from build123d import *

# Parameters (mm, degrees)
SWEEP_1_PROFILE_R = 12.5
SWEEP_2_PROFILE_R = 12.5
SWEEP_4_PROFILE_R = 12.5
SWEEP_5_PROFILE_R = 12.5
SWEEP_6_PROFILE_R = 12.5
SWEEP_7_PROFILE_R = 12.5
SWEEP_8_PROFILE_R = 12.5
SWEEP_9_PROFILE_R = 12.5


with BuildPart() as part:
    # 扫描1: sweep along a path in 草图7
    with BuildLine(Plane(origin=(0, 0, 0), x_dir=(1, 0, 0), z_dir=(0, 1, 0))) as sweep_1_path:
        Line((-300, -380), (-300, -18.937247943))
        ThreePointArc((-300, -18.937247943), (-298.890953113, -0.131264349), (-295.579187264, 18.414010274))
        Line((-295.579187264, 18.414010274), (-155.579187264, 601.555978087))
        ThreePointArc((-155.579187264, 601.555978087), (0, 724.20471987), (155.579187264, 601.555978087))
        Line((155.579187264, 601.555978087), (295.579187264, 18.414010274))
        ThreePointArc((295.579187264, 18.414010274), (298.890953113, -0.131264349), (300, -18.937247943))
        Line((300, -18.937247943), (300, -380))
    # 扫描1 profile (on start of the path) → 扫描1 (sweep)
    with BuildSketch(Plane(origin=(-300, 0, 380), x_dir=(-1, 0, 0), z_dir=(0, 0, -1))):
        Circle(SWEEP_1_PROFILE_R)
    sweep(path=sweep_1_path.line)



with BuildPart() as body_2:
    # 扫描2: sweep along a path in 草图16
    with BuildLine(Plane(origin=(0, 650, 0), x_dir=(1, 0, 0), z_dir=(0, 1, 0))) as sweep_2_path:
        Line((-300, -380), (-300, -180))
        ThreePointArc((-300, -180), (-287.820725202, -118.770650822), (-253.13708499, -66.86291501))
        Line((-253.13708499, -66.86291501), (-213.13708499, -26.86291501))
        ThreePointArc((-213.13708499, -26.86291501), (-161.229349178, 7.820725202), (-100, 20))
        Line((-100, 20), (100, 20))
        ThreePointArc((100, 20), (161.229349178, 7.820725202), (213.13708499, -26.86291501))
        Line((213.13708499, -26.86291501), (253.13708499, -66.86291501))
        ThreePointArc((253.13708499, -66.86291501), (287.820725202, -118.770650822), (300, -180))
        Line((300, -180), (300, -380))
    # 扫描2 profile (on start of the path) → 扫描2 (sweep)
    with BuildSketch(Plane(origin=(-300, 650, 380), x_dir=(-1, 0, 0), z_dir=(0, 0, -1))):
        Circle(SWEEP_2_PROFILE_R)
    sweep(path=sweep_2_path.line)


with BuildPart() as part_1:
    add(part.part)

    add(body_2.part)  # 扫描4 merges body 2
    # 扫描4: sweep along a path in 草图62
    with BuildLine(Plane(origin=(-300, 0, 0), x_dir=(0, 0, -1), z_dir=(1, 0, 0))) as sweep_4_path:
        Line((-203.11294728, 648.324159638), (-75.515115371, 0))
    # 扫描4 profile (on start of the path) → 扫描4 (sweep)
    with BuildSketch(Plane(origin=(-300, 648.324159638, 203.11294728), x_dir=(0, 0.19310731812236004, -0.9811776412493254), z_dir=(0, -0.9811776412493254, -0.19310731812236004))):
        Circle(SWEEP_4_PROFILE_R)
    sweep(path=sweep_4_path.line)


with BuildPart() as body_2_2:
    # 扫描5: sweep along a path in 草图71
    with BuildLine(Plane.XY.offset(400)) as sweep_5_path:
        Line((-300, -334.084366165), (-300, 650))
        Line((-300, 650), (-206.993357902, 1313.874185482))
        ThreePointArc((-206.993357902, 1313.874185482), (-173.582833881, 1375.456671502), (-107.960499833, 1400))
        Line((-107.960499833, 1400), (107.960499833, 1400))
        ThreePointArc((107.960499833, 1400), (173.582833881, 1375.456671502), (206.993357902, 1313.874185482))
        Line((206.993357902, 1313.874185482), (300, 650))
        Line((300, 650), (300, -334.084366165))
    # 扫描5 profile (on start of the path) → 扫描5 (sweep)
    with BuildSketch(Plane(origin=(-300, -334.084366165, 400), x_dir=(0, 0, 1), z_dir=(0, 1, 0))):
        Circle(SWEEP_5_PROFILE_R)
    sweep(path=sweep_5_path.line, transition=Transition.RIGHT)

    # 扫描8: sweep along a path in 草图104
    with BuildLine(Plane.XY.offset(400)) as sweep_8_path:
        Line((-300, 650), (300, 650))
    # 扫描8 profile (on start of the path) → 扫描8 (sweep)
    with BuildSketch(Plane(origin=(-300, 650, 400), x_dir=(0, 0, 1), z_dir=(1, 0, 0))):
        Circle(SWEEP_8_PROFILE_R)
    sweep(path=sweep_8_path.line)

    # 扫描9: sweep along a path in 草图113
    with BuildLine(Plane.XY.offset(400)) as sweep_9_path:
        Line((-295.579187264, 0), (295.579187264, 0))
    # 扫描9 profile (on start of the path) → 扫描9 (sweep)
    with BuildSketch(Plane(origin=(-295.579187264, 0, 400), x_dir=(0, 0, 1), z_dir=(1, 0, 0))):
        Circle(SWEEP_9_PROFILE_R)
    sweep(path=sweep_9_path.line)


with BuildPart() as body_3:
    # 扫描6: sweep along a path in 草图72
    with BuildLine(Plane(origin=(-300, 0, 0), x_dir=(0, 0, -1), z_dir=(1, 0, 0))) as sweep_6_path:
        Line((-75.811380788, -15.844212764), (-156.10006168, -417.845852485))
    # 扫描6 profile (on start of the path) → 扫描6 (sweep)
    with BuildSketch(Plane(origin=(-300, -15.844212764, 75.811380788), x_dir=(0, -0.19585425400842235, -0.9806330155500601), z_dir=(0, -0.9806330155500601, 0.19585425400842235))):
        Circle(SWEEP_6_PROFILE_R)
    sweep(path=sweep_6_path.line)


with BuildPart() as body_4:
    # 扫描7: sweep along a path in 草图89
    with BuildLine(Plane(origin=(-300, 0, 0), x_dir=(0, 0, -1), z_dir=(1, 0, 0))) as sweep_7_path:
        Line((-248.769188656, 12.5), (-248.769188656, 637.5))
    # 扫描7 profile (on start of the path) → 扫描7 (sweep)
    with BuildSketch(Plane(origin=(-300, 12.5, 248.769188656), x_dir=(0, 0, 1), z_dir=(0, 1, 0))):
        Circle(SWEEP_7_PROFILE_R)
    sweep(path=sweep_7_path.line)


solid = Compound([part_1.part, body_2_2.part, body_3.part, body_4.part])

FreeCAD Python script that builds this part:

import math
import FreeCAD as App
import Part
import Sketcher

V = App.Vector
Q = App.Units.Quantity

doc = App.newDocument("Part")
body = doc.addObject("PartDesign::Body", "Body")

# Sketch on XY plane
sketch1 = body.newObject("Sketcher::SketchObject", "Sketch")
sketch1.AttachmentSupport = (doc.getObject("XY_Plane"), [""])
sketch1.MapMode = "FlatFace"
sketch1.AttachmentOffset = App.Placement(V(0, 0, 380), App.Rotation())
sketch1.addGeometry(Part.Circle(V(-300, 0, 0), V(0, 0, 1), 12), False)
sketch1.addConstraint(Sketcher.Constraint("PointOnObject", 0, 3, -1))
sketch1.addConstraint(Sketcher.Constraint("Diameter", 0, 25.0))
sketch1.addConstraint(Sketcher.Constraint("DistanceX", 0, 3, -1, 1, 300.0))

# Sketch on XZ plane
sketch2 = body.newObject("Sketcher::SketchObject", "Sketch001")
sketch2.AttachmentSupport = (doc.getObject("XZ_Plane"), [""])
sketch2.MapMode = "FlatFace"
sketch2.addGeometry(Part.LineSegment(V(-300, 380, 0), V(-300, 19, 0)), False)
sketch2.addGeometry(Part.ArcOfCircle(Part.Circle(V(-140, 19, 0), V(0, 0, 1), 160), math.radians(180), math.radians(193.5)), False)
sketch2.addGeometry(Part.LineSegment(V(-296, -18, 0), V(-156, -602, 0)), False)
sketch2.addGeometry(Part.ArcOfCircle(Part.Circle(V(0, -564, 0), V(0, 0, 1), 160), math.radians(-167), math.radians(-13)), False)
sketch2.addGeometry(Part.LineSegment(V(156, -602, 0), V(296, -18, 0)), False)
sketch2.addGeometry(Part.ArcOfCircle(Part.Circle(V(140, 19, 0), V(0, 0, 1), 160), math.radians(-13.5), math.radians(0)), False)
sketch2.addGeometry(Part.LineSegment(V(300, 19, 0), V(300, 380, 0)), False)
sketch2.addConstraint(Sketcher.Constraint("Tangent", 0, 2, 1, 1))
sketch2.addConstraint(Sketcher.Constraint("Tangent", 1, 2, 2, 1))
sketch2.addConstraint(Sketcher.Constraint("Tangent", 2, 2, 3, 1))
sketch2.addConstraint(Sketcher.Constraint("Tangent", 3, 2, 4, 1))
sketch2.addConstraint(Sketcher.Constraint("Tangent", 4, 2, 5, 1))
sketch2.addConstraint(Sketcher.Constraint("Tangent", 5, 2, 6, 1))
sketch2.addConstraint(Sketcher.Constraint("Vertical", 0))
sketch2.addConstraint(Sketcher.Constraint("Vertical", 6))
sketch2.addConstraint(Sketcher.Constraint("Equal", 1, 3))
sketch2.addConstraint(Sketcher.Constraint("Equal", 3, 5))
sketch2.addConstraint(Sketcher.Constraint("Symmetric", 1, 3, 5, 3, -2))
sketch2.addConstraint(Sketcher.Constraint("PointOnObject", 3, 3, -2))
sketch2.addConstraint(Sketcher.Constraint("Horizontal", 0, 1, 6, 2))
sketch2.addConstraint(Sketcher.Constraint("Radius", 1, 160.0))
sketch2.addConstraint(Sketcher.Constraint("DistanceX", 1, 3, -1, 1, 140.0))
sketch2.addConstraint(Sketcher.Constraint("DistanceY", -1, 1, 0, 1, 380.0))
sketch2.addConstraint(Sketcher.Constraint("Angle", 2, Q("-76.5 deg")))
sketch2.addConstraint(Sketcher.Constraint("DistanceY", 0, 2, 0, 1, 361.062752))
doc.recompute()

additivepipe = body.newObject("PartDesign::AdditivePipe", "AdditivePipe")
additivepipe.Profile = sketch1
additivepipe.Spine = (sketch2, ["Edge1", "Edge2", "Edge3", "Edge4", "Edge5", "Edge6", "Edge7"])
body2 = doc.addObject("PartDesign::Body", "Body001")

# Sketch on XY plane
sketch3 = body2.newObject("Sketcher::SketchObject", "Sketch002")
sketch3.AttachmentSupport = (doc.getObject("XY_Plane001"), [""])
sketch3.MapMode = "FlatFace"
sketch3.AttachmentOffset = App.Placement(V(0, 0, 380), App.Rotation())
sketch3.addGeometry(Part.Circle(V(-300, 650, 0), V(0, 0, 1), 12), False)
sketch3.addConstraint(Sketcher.Constraint("Diameter", 0, 25.0))
sketch3.addConstraint(Sketcher.Constraint("DistanceX", 0, 3, -1, 1, 300.0))
sketch3.addConstraint(Sketcher.Constraint("DistanceY", -1, 1, 0, 3, 650.0))

# Sketch on XZ plane
sketch4 = body2.newObject("Sketcher::SketchObject", "Sketch003")
sketch4.AttachmentSupport = (doc.getObject("XZ_Plane001"), [""])
sketch4.MapMode = "FlatFace"
sketch4.AttachmentOffset = App.Placement(V(0, 0, -650), App.Rotation())
sketch4.addGeometry(Part.LineSegment(V(-300, 380, 0), V(-300, 180, 0)), False)
sketch4.addGeometry(Part.ArcOfCircle(Part.Circle(V(-140, 180, 0), V(0, 0, 1), 160), math.radians(180), math.radians(225)), False)
sketch4.addGeometry(Part.LineSegment(V(-253, 67, 0), V(-213, 27, 0)), False)
sketch4.addGeometry(Part.ArcOfCircle(Part.Circle(V(-100, 140, 0), V(0, 0, 1), 160), math.radians(-135), math.radians(-90)), False)
sketch4.addGeometry(Part.LineSegment(V(-100, -20, 0), V(100, -20, 0)), False)
sketch4.addGeometry(Part.ArcOfCircle(Part.Circle(V(100, 140, 0), V(0, 0, 1), 160), math.radians(-90), math.radians(-45)), False)
sketch4.addGeometry(Part.LineSegment(V(213, 27, 0), V(253, 67, 0)), False)
sketch4.addGeometry(Part.ArcOfCircle(Part.Circle(V(140, 180, 0), V(0, 0, 1), 160), math.radians(-45), math.radians(0)), False)
sketch4.addGeometry(Part.LineSegment(V(300, 180, 0), V(300, 380, 0)), False)
sketch4.addConstraint(Sketcher.Constraint("Tangent", 0, 2, 1, 1))
sketch4.addConstraint(Sketcher.Constraint("Tangent", 1, 2, 2, 1))
sketch4.addConstraint(Sketcher.Constraint("Tangent", 2, 2, 3, 1))
sketch4.addConstraint(Sketcher.Constraint("Tangent", 3, 2, 4, 1))
sketch4.addConstraint(Sketcher.Constraint("Tangent", 4, 2, 5, 1))
sketch4.addConstraint(Sketcher.Constraint("Tangent", 5, 2, 6, 1))
sketch4.addConstraint(Sketcher.Constraint("Tangent", 6, 2, 7, 1))
sketch4.addConstraint(Sketcher.Constraint("Tangent", 7, 2, 8, 1))
sketch4.addConstraint(Sketcher.Constraint("Vertical", 0))
sketch4.addConstraint(Sketcher.Constraint("Horizontal", 4))
sketch4.addConstraint(Sketcher.Constraint("Vertical", 8))
sketch4.addConstraint(Sketcher.Constraint("Equal", 1, 3))
sketch4.addConstraint(Sketcher.Constraint("Equal", 3, 5))
sketch4.addConstraint(Sketcher.Constraint("Equal", 5, 7))
sketch4.addConstraint(Sketcher.Constraint("Symmetric", 1, 3, 7, 3, -2))
sketch4.addConstraint(Sketcher.Constraint("Perpendicular", 2, 6))
sketch4.addConstraint(Sketcher.Constraint("Horizontal", 2, 2, 5, 2))
sketch4.addConstraint(Sketcher.Constraint("Horizontal", 0, 1, 8, 2))
sketch4.addConstraint(Sketcher.Constraint("Equal", 4, 0))
sketch4.addConstraint(Sketcher.Constraint("Radius", 1, 160.0))
sketch4.addConstraint(Sketcher.Constraint("DistanceX", 4, 1, 4, 2, 200.0))
sketch4.addConstraint(Sketcher.Constraint("DistanceX", 1, 3, -1, 1, 140.0))
sketch4.addConstraint(Sketcher.Constraint("DistanceY", -1, 1, 1, 3, 180.0))
doc.recompute()

additivepipe2 = body2.newObject("PartDesign::AdditivePipe", "AdditivePipe001")
additivepipe2.Profile = sketch3
additivepipe2.Spine = (sketch4, ["Edge1", "Edge2", "Edge3", "Edge4", "Edge5", "Edge6", "Edge7", "Edge8", "Edge9"])
body.AllowCompound = True
doc.recompute()

boolean = body.newObject("PartDesign::Boolean", "Boolean")
boolean.Type = "Fuse"
boolean.addObjects([body2])

# Sketch on an angled plane
sketch5 = body.newObject("Sketcher::SketchObject", "Sketch004")
sketch5.Placement = App.Placement(V(-300, 648.32416, 203.112947), App.Rotation(V(0, 0.193107318, -0.981177641), V(0.999999999, 0, 0), V(0, -0.981177641, -0.193107318), "ZXY"))
sketch5.addGeometry(Part.Circle(V(0, 0, 0), V(0, 0, 1), 12), False)
sketch5.addConstraint(Sketcher.Constraint("Coincident", 0, 3, -1, 1))
sketch5.addConstraint(Sketcher.Constraint("Diameter", 0, 25.0))

# Sketch on an angled plane
sketch6 = body.newObject("Sketcher::SketchObject", "Sketch005")
sketch6.Placement = App.Placement(V(0, -14.308044, 72.699124), App.Rotation(V(0, 0.981177641, 0.193107318), V(0.999999999, 0, 0), V(0, 0.193107318, -0.981177641), "ZXY"))
sketch6.addGeometry(Part.LineSegment(V(675, -300, 0), V(15, -300, 0)), False)
sketch6.addConstraint(Sketcher.Constraint("Horizontal", 0))
sketch6.addConstraint(Sketcher.Constraint("DistanceY", 0, 1, -1, 1, 300.0))
sketch6.addConstraint(Sketcher.Constraint("DistanceX", 0, 2, 0, 1, 660.761244))
sketch6.addConstraint(Sketcher.Constraint("DistanceX", -1, 1, 0, 2, 14.582521))
doc.recompute()

additivepipe3 = body.newObject("PartDesign::AdditivePipe", "AdditivePipe002")
additivepipe3.Profile = sketch5
additivepipe3.Spine = (sketch6, ["Edge1"])
body3 = doc.addObject("PartDesign::Body", "Body002")

# Sketch on XZ plane
sketch7 = body3.newObject("Sketcher::SketchObject", "Sketch006")
sketch7.AttachmentSupport = (doc.getObject("XZ_Plane002"), [""])
sketch7.MapMode = "FlatFace"
sketch7.AttachmentOffset = App.Placement(V(0, 0, 334.084366), App.Rotation())
sketch7.addGeometry(Part.Circle(V(-300, 400, 0), V(0, 0, 1), 12), False)
sketch7.addConstraint(Sketcher.Constraint("Diameter", 0, 25.0))
sketch7.addConstraint(Sketcher.Constraint("DistanceX", 0, 3, -1, 1, 300.0))
sketch7.addConstraint(Sketcher.Constraint("DistanceY", -1, 1, 0, 3, 400.0))

# Sketch on XY plane
sketch8 = body3.newObject("Sketcher::SketchObject", "Sketch007")
sketch8.AttachmentSupport = (doc.getObject("XY_Plane002"), [""])
sketch8.MapMode = "FlatFace"
sketch8.AttachmentOffset = App.Placement(V(0, 0, 400), App.Rotation())
sketch8.addGeometry(Part.LineSegment(V(-300, -334, 0), V(-300, 650, 0)), False)
sketch8.addGeometry(Part.LineSegment(V(-300, 650, 0), V(-207, 1314, 0)), False)
sketch8.addGeometry(Part.ArcOfCircle(Part.Circle(V(-108, 1300, 0), V(0, 0, 1), 100), math.radians(90), math.radians(172)), False)
sketch8.addGeometry(Part.LineSegment(V(-108, 1400, 0), V(108, 1400, 0)), False)
sketch8.addGeometry(Part.ArcOfCircle(Part.Circle(V(108, 1300, 0), V(0, 0, 1), 100), math.radians(8), math.radians(90)), False)
sketch8.addGeometry(Part.LineSegment(V(207, 1314, 0), V(300, 650, 0)), False)
sketch8.addGeometry(Part.LineSegment(V(300, 650, 0), V(300, -334, 0)), False)
sketch8.addConstraint(Sketcher.Constraint("Coincident", 0, 2, 1, 1))
sketch8.addConstraint(Sketcher.Constraint("Tangent", 1, 2, 2, 2))
sketch8.addConstraint(Sketcher.Constraint("Tangent", 2, 1, 3, 1))
sketch8.addConstraint(Sketcher.Constraint("Tangent", 3, 2, 4, 2))
sketch8.addConstraint(Sketcher.Constraint("Tangent", 4, 1, 5, 1))
sketch8.addConstraint(Sketcher.Constraint("Coincident", 5, 2, 6, 1))
sketch8.addConstraint(Sketcher.Constraint("Vertical", 0))
sketch8.addConstraint(Sketcher.Constraint("Horizontal", 3))
sketch8.addConstraint(Sketcher.Constraint("Vertical", 6))
sketch8.addConstraint(Sketcher.Constraint("Equal", 2, 4))
sketch8.addConstraint(Sketcher.Constraint("Symmetric", 0, 2, 5, 2, -2))
sketch8.addConstraint(Sketcher.Constraint("Horizontal", 0, 1, 6, 2))
sketch8.addConstraint(Sketcher.Constraint("Equal", 1, 5))
sketch8.addConstraint(Sketcher.Constraint("Radius", 2, 100.0))
sketch8.addConstraint(Sketcher.Constraint("DistanceY", -1, 1, 2, 3, 1300.0))
sketch8.addConstraint(Sketcher.Constraint("DistanceX", 0, 1, -1, 1, 300.0))
sketch8.addConstraint(Sketcher.Constraint("DistanceY", -1, 1, 0, 2, 650.0))
sketch8.addConstraint(Sketcher.Constraint("DistanceX", 3, 1, 3, 2, 215.921))
sketch8.addConstraint(Sketcher.Constraint("DistanceY", 0, 1, 0, 2, 984.084366))
doc.recompute()

additivepipe4 = body3.newObject("PartDesign::AdditivePipe", "AdditivePipe003")
additivepipe4.Profile = sketch7
additivepipe4.Spine = (sketch8, ["Edge1", "Edge2", "Edge3", "Edge4", "Edge5", "Edge6", "Edge7"])
additivepipe4.Transition = "Right corner"

# Sketch on YZ plane
sketch9 = body3.newObject("Sketcher::SketchObject", "Sketch008")
sketch9.AttachmentSupport = (doc.getObject("YZ_Plane002"), [""])
sketch9.MapMode = "FlatFace"
sketch9.AttachmentOffset = App.Placement(V(0, 0, -300), App.Rotation())
sketch9.addGeometry(Part.Circle(V(650, 400, 0), V(0, 0, 1), 12), False)
sketch9.addConstraint(Sketcher.Constraint("Diameter", 0, 25.0))
sketch9.addConstraint(Sketcher.Constraint("DistanceX", -1, 1, 0, 3, 650.0))
sketch9.addConstraint(Sketcher.Constraint("DistanceY", -1, 1, 0, 3, 400.0))

# Sketch on XY plane
sketch10 = body3.newObject("Sketcher::SketchObject", "Sketch009")
sketch10.AttachmentSupport = (doc.getObject("XY_Plane002"), [""])
sketch10.MapMode = "FlatFace"
sketch10.AttachmentOffset = App.Placement(V(0, 0, 400), App.Rotation())
sketch10.addGeometry(Part.LineSegment(V(-300, 650, 0), V(300, 650, 0)), False)
sketch10.addConstraint(Sketcher.Constraint("Horizontal", 0))
sketch10.addConstraint(Sketcher.Constraint("DistanceX", 0, 1, 0, 2, 600.0))
sketch10.addConstraint(Sketcher.Constraint("DistanceX", 0, 1, -1, 1, 300.0))
sketch10.addConstraint(Sketcher.Constraint("DistanceY", -1, 1, 0, 1, 650.0))
doc.recompute()

additivepipe5 = body3.newObject("PartDesign::AdditivePipe", "AdditivePipe004")
additivepipe5.Profile = sketch9
additivepipe5.Spine = (sketch10, ["Edge1"])

# Sketch on YZ plane
sketch11 = body3.newObject("Sketcher::SketchObject", "Sketch010")
sketch11.AttachmentSupport = (doc.getObject("YZ_Plane002"), [""])
sketch11.MapMode = "FlatFace"
sketch11.AttachmentOffset = App.Placement(V(0, 0, -295.579187), App.Rotation())
sketch11.addGeometry(Part.Circle(V(0, 400, 0), V(0, 0, 1), 12), False)
sketch11.addConstraint(Sketcher.Constraint("PointOnObject", 0, 3, -2))
sketch11.addConstraint(Sketcher.Constraint("Diameter", 0, 25.0))
sketch11.addConstraint(Sketcher.Constraint("DistanceY", -1, 1, 0, 3, 400.0))

# Sketch on XY plane
sketch12 = body3.newObject("Sketcher::SketchObject", "Sketch011")
sketch12.AttachmentSupport = (doc.getObject("XY_Plane002"), [""])
sketch12.MapMode = "FlatFace"
sketch12.AttachmentOffset = App.Placement(V(0, 0, 400), App.Rotation())
sketch12.addGeometry(Part.LineSegment(V(-296, 0, 0), V(296, 0, 0)), False)
sketch12.addConstraint(Sketcher.Constraint("Horizontal", 0))
sketch12.addConstraint(Sketcher.Constraint("Symmetric", 0, 1, 0, 2, -1, 1))
sketch12.addConstraint(Sketcher.Constraint("DistanceX", 0, 1, 0, 2, 591.158375))
doc.recompute()

additivepipe6 = body3.newObject("PartDesign::AdditivePipe", "AdditivePipe005")
additivepipe6.Profile = sketch11
additivepipe6.Spine = (sketch12, ["Edge1"])
body4 = doc.addObject("PartDesign::Body", "Body003")

# Sketch on an angled plane
sketch13 = body4.newObject("Sketcher::SketchObject", "Sketch012")
sketch13.Placement = App.Placement(V(-300, -15.844213, 75.811381), App.Rotation(V(0, -0.195854254, -0.980633016), V(1.000000001, 0, 0), V(0, -0.980633016, 0.195854254), "ZXY"))
sketch13.addGeometry(Part.Circle(V(0, 0, 0), V(0, 0, 1), 12), False)
sketch13.addConstraint(Sketcher.Constraint("Coincident", 0, 3, -1, 1))
sketch13.addConstraint(Sketcher.Constraint("Diameter", 0, 25.0))

# Sketch on an angled plane
sketch14 = body4.newObject("Sketcher::SketchObject", "Sketch013")
sketch14.Placement = App.Placement(V(0, 13.952654, 69.860283), App.Rotation(V(0, 0.980633016, -0.195854254), V(1.000000001, 0, 0), V(0, -0.195854254, -0.980633016), "ZXY"))
sketch14.addGeometry(Part.LineSegment(V(-30, -300, 0), V(-440, -300, 0)), False)
sketch14.addConstraint(Sketcher.Constraint("Horizontal", 0))
sketch14.addConstraint(Sketcher.Constraint("DistanceY", 0, 1, -1, 1, 300.000001))
sketch14.addConstraint(Sketcher.Constraint("DistanceX", 0, 2, 0, 1, 409.94096))
sketch14.addConstraint(Sketcher.Constraint("DistanceX", 0, 2, -1, 1, 440.3263))
doc.recompute()

additivepipe7 = body4.newObject("PartDesign::AdditivePipe", "AdditivePipe006")
additivepipe7.Profile = sketch13
additivepipe7.Spine = (sketch14, ["Edge1"])
body5 = doc.addObject("PartDesign::Body", "Body004")

# Sketch on XZ plane
sketch15 = body5.newObject("Sketcher::SketchObject", "Sketch014")
sketch15.AttachmentSupport = (doc.getObject("XZ_Plane004"), [""])
sketch15.MapMode = "FlatFace"
sketch15.AttachmentOffset = App.Placement(V(0, 0, -12.5), App.Rotation())
sketch15.addGeometry(Part.Circle(V(-300, 249, 0), V(0, 0, 1), 12), False)
sketch15.addConstraint(Sketcher.Constraint("Diameter", 0, 25.0))
sketch15.addConstraint(Sketcher.Constraint("DistanceX", 0, 3, -1, 1, 300.0))
sketch15.addConstraint(Sketcher.Constraint("DistanceY", -1, 1, 0, 3, 248.769189))

# Sketch on XY plane
sketch16 = body5.newObject("Sketcher::SketchObject", "Sketch015")
sketch16.AttachmentSupport = (doc.getObject("XY_Plane004"), [""])
sketch16.MapMode = "FlatFace"
sketch16.AttachmentOffset = App.Placement(V(0, 0, 248.769189), App.Rotation())
sketch16.addGeometry(Part.LineSegment(V(-300, 12, 0), V(-300, 638, 0)), False)
sketch16.addConstraint(Sketcher.Constraint("Vertical", 0))
sketch16.addConstraint(Sketcher.Constraint("DistanceY", 0, 1, 0, 2, 625.0))
sketch16.addConstraint(Sketcher.Constraint("DistanceX", 0, 1, -1, 1, 300.0))
sketch16.addConstraint(Sketcher.Constraint("DistanceY", -1, 1, 0, 1, 12.5))
doc.recompute()

additivepipe8 = body5.newObject("PartDesign::AdditivePipe", "AdditivePipe007")
additivepipe8.Profile = sketch15
additivepipe8.Spine = (sketch16, ["Edge1"])

doc.recompute()
